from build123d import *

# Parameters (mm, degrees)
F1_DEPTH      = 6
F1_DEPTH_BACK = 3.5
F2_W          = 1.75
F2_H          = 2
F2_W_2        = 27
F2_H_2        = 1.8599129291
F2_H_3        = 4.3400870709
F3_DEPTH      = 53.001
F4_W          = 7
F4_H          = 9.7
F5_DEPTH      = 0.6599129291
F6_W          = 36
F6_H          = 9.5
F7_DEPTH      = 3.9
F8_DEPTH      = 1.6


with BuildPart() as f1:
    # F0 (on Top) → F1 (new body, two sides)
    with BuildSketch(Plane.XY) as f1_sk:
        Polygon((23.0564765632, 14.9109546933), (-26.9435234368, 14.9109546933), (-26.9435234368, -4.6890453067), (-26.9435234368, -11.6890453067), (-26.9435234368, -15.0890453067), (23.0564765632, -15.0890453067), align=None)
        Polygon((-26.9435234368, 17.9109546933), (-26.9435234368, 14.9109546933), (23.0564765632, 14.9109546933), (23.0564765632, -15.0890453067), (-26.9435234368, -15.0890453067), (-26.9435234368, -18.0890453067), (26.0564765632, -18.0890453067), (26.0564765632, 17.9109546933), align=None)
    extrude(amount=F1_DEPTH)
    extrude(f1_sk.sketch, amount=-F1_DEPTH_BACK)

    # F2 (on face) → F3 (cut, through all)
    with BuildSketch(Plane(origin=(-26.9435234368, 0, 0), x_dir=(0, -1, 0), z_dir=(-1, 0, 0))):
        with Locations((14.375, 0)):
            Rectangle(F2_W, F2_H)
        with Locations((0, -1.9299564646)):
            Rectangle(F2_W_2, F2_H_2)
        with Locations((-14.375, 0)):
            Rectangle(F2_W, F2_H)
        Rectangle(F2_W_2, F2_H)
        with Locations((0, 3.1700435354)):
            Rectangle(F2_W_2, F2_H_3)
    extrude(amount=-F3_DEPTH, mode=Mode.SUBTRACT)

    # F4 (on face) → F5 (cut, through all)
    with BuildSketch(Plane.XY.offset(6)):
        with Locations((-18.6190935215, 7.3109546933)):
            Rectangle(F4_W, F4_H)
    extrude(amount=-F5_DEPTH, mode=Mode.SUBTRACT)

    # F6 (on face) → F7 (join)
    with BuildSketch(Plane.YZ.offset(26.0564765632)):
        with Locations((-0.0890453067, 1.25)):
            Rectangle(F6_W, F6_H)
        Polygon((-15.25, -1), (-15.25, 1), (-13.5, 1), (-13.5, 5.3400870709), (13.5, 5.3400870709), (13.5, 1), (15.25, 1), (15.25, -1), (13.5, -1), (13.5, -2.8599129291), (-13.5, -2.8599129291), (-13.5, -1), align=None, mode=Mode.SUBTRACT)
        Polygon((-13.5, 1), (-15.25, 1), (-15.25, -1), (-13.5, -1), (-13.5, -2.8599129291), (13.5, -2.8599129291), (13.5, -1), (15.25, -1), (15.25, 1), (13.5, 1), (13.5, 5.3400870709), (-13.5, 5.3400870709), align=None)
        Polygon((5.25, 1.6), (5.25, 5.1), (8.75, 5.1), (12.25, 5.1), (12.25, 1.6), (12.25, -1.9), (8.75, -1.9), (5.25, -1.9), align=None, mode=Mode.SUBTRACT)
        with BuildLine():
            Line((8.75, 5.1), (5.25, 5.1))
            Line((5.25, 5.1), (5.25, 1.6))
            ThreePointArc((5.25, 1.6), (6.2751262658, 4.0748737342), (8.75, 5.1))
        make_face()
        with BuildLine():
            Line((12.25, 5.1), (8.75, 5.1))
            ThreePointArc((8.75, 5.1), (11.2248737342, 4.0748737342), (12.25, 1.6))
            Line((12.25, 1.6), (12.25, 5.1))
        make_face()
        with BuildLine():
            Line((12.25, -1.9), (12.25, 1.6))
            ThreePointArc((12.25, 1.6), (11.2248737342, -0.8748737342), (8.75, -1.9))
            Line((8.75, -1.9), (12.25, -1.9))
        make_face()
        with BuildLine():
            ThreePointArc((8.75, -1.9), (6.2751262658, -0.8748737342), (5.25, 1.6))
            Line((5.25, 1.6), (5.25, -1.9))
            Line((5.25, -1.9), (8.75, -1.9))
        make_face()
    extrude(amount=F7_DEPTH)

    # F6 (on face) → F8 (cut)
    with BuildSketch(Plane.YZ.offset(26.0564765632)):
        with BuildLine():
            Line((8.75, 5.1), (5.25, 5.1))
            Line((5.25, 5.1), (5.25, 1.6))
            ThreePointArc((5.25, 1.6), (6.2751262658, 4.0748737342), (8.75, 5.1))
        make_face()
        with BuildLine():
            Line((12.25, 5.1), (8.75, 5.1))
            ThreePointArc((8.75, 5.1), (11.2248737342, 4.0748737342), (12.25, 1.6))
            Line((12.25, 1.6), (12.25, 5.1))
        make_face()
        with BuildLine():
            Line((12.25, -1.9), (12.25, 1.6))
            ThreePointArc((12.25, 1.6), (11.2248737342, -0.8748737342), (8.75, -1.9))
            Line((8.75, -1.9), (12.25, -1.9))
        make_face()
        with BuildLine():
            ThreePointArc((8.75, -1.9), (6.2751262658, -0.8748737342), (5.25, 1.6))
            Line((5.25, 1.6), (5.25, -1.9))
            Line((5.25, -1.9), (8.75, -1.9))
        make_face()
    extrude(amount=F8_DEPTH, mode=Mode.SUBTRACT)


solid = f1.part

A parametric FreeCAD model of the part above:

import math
import FreeCAD as App
import Part
import Sketcher

doc = App.newDocument("Part")
body = doc.addObject("PartDesign::Body", "Body")

sketch1 = body.newObject("Sketcher::SketchObject", "Sketch")
sketch1.AttachmentSupport = (doc.getObject("XY_Plane"), [""])
sketch1.MapMode = "FlatFace"
sketch1.addGeometry([
    Part.LineSegment(App.Vector(-27, -18, 0), App.Vector(26, -18, 0)),
    Part.LineSegment(App.Vector(26, -18, 0), App.Vector(26, 18, 0)),
    Part.LineSegment(App.Vector(26, 18, 0), App.Vector(-27, 18, 0)),
    Part.LineSegment(App.Vector(-27, 18, 0), App.Vector(-27, -18, 0)),
], False)
sketch1.addConstraint([
    Sketcher.Constraint("Coincident", 0, 2, 1, 1),
    Sketcher.Constraint("Coincident", 1, 2, 2, 1),
    Sketcher.Constraint("Coincident", 2, 2, 3, 1),
    Sketcher.Constraint("Coincident", 3, 2, 0, 1),
    Sketcher.Constraint("Horizontal", 0),
    Sketcher.Constraint("Vertical", 1),
    Sketcher.Constraint("Horizontal", 2),
    Sketcher.Constraint("Vertical", 3),
    Sketcher.Constraint("DistanceX", 0, 1, 0, 2, 53.0),
    Sketcher.Constraint("DistanceY", 1, 1, 1, 2, 36.0),
    Sketcher.Constraint("DistanceX", -1, 1, 0, 2, 26.056477),
    Sketcher.Constraint("DistanceY", 0, 2, -1, 1, 18.089045),
])
pad1 = body.newObject("PartDesign::Pad", "Pad")
pad1.Profile = sketch1
pad1.Type = "TwoLengths"
pad1.Length = 6
pad1.Length2 = 3.5

sketch2 = body.newObject("Sketcher::SketchObject", "Sketch001")
sketch2.AttachmentSupport = (doc.getObject("YZ_Plane"), [""])
sketch2.MapMode = "FlatFace"
sketch2.AttachmentOffset = App.Placement(App.Vector(0, 0, -26.943523), App.Rotation())
sketch2.addGeometry([
    Part.LineSegment(App.Vector(-13.5, -1, 0), App.Vector(-15.2, -1, 0)),
    Part.LineSegment(App.Vector(-15.2, -1, 0), App.Vector(-15.2, 1, 0)),
    Part.LineSegment(App.Vector(-15.2, 1, 0), App.Vector(-13.5, 1, 0)),
    Part.LineSegment(App.Vector(-13.5, 1, 0), App.Vector(-13.5, 5.3, 0)),
    Part.LineSegment(App.Vector(-13.5, 5.3, 0), App.Vector(13.5, 5.3, 0)),
    Part.LineSegment(App.Vector(13.5, 5.3, 0), App.Vector(13.5, 1, 0)),
    Part.LineSegment(App.Vector(13.5, 1, 0), App.Vector(15.2, 1, 0)),
    Part.LineSegment(App.Vector(15.2, 1, 0), App.Vector(15.2, -1, 0)),
    Part.LineSegment(App.Vector(15.2, -1, 0), App.Vector(13.5, -1, 0)),
    Part.LineSegment(App.Vector(13.5, -1, 0), App.Vector(13.5, -2.9, 0)),
    Part.LineSegment(App.Vector(13.5, -2.9, 0), App.Vector(-13.5, -2.9, 0)),
    Part.LineSegment(App.Vector(-13.5, -2.9, 0), App.Vector(-13.5, -1, 0)),
], False)
sketch2.addConstraint([
    Sketcher.Constraint("Coincident", 0, 2, 1, 1),
    Sketcher.Constraint("Coincident", 1, 2, 2, 1),
    Sketcher.Constraint("Coincident", 2, 2, 3, 1),
    Sketcher.Constraint("Coincident", 3, 2, 4, 1),
    Sketcher.Constraint("Coincident", 4, 2, 5, 1),
    Sketcher.Constraint("Coincident", 5, 2, 6, 1),
    Sketcher.Constraint("Coincident", 6, 2, 7, 1),
    Sketcher.Constraint("Coincident", 7, 2, 8, 1),
    Sketcher.Constraint("Coincident", 8, 2, 9, 1),
    Sketcher.Constraint("Coincident", 9, 2, 10, 1),
    Sketcher.Constraint("Coincident", 10, 2, 11, 1),
    Sketcher.Constraint("Coincident", 11, 2, 0, 1),
    Sketcher.Constraint("Horizontal", 0),
    Sketcher.Constraint("Vertical", 1),
    Sketcher.Constraint("Horizontal", 2),
    Sketcher.Constraint("Vertical", 3),
    Sketcher.Constraint("Horizontal", 4),
    Sketcher.Constraint("Vertical", 5),
    Sketcher.Constraint("Horizontal", 6),
    Sketcher.Constraint("Vertical", 7),
    Sketcher.Constraint("Horizontal", 8),
    Sketcher.Constraint("Vertical", 9),
    Sketcher.Constraint("Horizontal", 10),
    Sketcher.Constraint("Vertical", 11),
    Sketcher.Constraint("Symmetric", 0, 2, 6, 2, -1, 1),
    Sketcher.Constraint("Symmetric", 2, 2, 8, 2, -1, 1),
    Sketcher.Constraint("Symmetric", 2, 2, 5, 2, -2),
    Sketcher.Constraint("Vertical", 3, 2, 10, 2),
    Sketcher.Constraint("DistanceX", 4, 1, 4, 2, 27.0),
    Sketcher.Constraint("DistanceY", 1, 1, 1, 2, 2.0),
    Sketcher.Constraint("DistanceX", 0, 2, 0, 1, 1.75),
    Sketcher.Constraint("DistanceY", 9, 2, 4, 2, 8.2),
    Sketcher.Constraint("DistanceY", 3, 1, 3, 2, 4.340087),
])
pocket1 = body.newObject("PartDesign::Pocket", "Pocket")
pocket1.Profile = sketch2
pocket1.Type = "ThroughAll"
pocket1.Reversed = True

sketch3 = body.newObject("Sketcher::SketchObject", "Sketch002")
sketch3.AttachmentSupport = (doc.getObject("XY_Plane"), [""])
sketch3.MapMode = "FlatFace"
sketch3.AttachmentOffset = App.Placement(App.Vector(0, 0, 6), App.Rotation())
sketch3.addGeometry([
    Part.LineSegment(App.Vector(-22, 12, 0), App.Vector(-22, 2, 0)),
    Part.LineSegment(App.Vector(-22, 2, 0), App.Vector(-15, 2, 0)),
    Part.LineSegment(App.Vector(-15, 2, 0), App.Vector(-15, 12, 0)),
    Part.LineSegment(App.Vector(-15, 12, 0), App.Vector(-22, 12, 0)),
], False)
sketch3.addConstraint([
    Sketcher.Constraint("Coincident", 0, 2, 1, 1),
    Sketcher.Constraint("Coincident", 1, 2, 2, 1),
    Sketcher.Constraint("Coincident", 2, 2, 3, 1),
    Sketcher.Constraint("Coincident", 3, 2, 0, 1),
    Sketcher.Constraint("Vertical", 0),
    Sketcher.Constraint("Horizontal", 1),
    Sketcher.Constraint("Vertical", 2),
    Sketcher.Constraint("Horizontal", 3),
    Sketcher.Constraint("DistanceX", 1, 1, 1, 2, 7.0),
    Sketcher.Constraint("DistanceY", 0, 2, 0, 1, 9.7),
    Sketcher.Constraint("DistanceX", 0, 2, -1, 1, 22.119094),
    Sketcher.Constraint("DistanceY", -1, 1, 0, 2, 2.460955),
])
pocket2 = body.newObject("PartDesign::Pocket", "Pocket001")
pocket2.Profile = sketch3
pocket2.Length = 0.659913

sketch4 = body.newObject("Sketcher::SketchObject", "Sketch003")
sketch4.AttachmentSupport = (doc.getObject("YZ_Plane"), [""])
sketch4.MapMode = "FlatFace"
sketch4.AttachmentOffset = App.Placement(App.Vector(0, 0, 26.056477), App.Rotation())
sketch4.addGeometry([
    Part.LineSegment(App.Vector(-18.1, 6, 0), App.Vector(-18.1, -3.5, 0)),
    Part.LineSegment(App.Vector(-18.1, -3.5, 0), App.Vector(17.9, -3.5, 0)),
    Part.LineSegment(App.Vector(17.9, -3.5, 0), App.Vector(17.9, 6, 0)),
    Part.LineSegment(App.Vector(17.9, 6, 0), App.Vector(-18.1, 6, 0)),
    Part.ArcOfCircle(Part.Circle(App.Vector(8.8, 1.6, 0), App.Vector(0, 0, 1), 3.5), math.radians(90), math.radians(180)),
    Part.ArcOfCircle(Part.Circle(App.Vector(8.8, 1.6, 0), App.Vector(0, 0, 1), 3.5), math.radians(0), math.radians(90)),
    Part.ArcOfCircle(Part.Circle(App.Vector(8.8, 1.6, 0), App.Vector(0, 0, 1), 3.5), math.radians(-90), math.radians(0)),
    Part.ArcOfCircle(Part.Circle(App.Vector(8.8, 1.6, 0), App.Vector(0, 0, 1), 3.5), math.radians(180), math.radians(270)),
], False)
sketch4.addConstraint([
    Sketcher.Constraint("Coincident", 0, 2, 1, 1),
    Sketcher.Constraint("Coincident", 1, 2, 2, 1),
    Sketcher.Constraint("Coincident", 2, 2, 3, 1),
    Sketcher.Constraint("Coincident", 3, 2, 0, 1),
    Sketcher.Constraint("Tangent", 4, 1, 5, 2),
    Sketcher.Constraint("Tangent", 5, 1, 6, 2),
    Sketcher.Constraint("Tangent", 6, 1, 7, 2),
    Sketcher.Constraint("Tangent", 7, 1, 4, 2),
    Sketcher.Constraint("Vertical", 0),
    Sketcher.Constraint("Horizontal", 1),
    Sketcher.Constraint("Vertical", 2),
    Sketcher.Constraint("Horizontal", 3),
    Sketcher.Constraint("Equal", 4, 5),
    Sketcher.Constraint("Horizontal", 7, 3, 5, 1),
    Sketcher.Constraint("Horizontal", 5, 1, 7, 1),
    Sketcher.Constraint("Vertical", 7, 3, 4, 1),
    Sketcher.Constraint("Vertical", 4, 1, 6, 1),
    Sketcher.Constraint("Radius", 4, 3.5),
    Sketcher.Constraint("DistanceX", 1, 1, 1, 2, 36.0),
    Sketcher.Constraint("DistanceY", 0, 2, 0, 1, 9.5),
    Sketcher.Constraint("DistanceY", -1, 1, 2, 2, 6.0),
    Sketcher.Constraint("DistanceY", -1, 1, 4, 3, 1.6),
    Sketcher.Constraint("DistanceX", -1, 1, 4, 3, 8.75),
    Sketcher.Constraint("DistanceX", 0, 2, -1, 1, 18.089045),
])
pad2 = body.newObject("PartDesign::Pad", "Pad001")
pad2.Profile = sketch4
pad2.Length = 3.9

sketch5 = body.newObject("Sketcher::SketchObject", "Sketch004")
sketch5.AttachmentSupport = (doc.getObject("YZ_Plane"), [""])
sketch5.MapMode = "FlatFace"
sketch5.AttachmentOffset = App.Placement(App.Vector(0, 0, 26.056477), App.Rotation())
sketch5.addGeometry([
    Part.LineSegment(App.Vector(8.8, 5.1, 0), App.Vector(5.2, 5.1, 0)),
    Part.LineSegment(App.Vector(5.2, 5.1, 0), App.Vector(5.2, 1.6, 0)),
    Part.ArcOfCircle(Part.Circle(App.Vector(8.8, 1.6, 0), App.Vector(0, 0, 1), 3.5), math.radians(90), math.radians(180)),
    Part.LineSegment(App.Vector(12.2, 5.1, 0), App.Vector(8.8, 5.1, 0)),
    Part.ArcOfCircle(Part.Circle(App.Vector(8.8, 1.6, 0), App.Vector(0, 0, 1), 3.5), math.radians(0), math.radians(90)),
    Part.LineSegment(App.Vector(12.2, 1.6, 0), App.Vector(12.2, 5.1, 0)),
    Part.LineSegment(App.Vector(12.2, -1.9, 0), App.Vector(12.2, 1.6, 0)),
    Part.ArcOfCircle(Part.Circle(App.Vector(8.8, 1.6, 0), App.Vector(0, 0, 1), 3.5), math.radians(-90), math.radians(0)),
    Part.LineSegment(App.Vector(8.8, -1.9, 0), App.Vector(12.2, -1.9, 0)),
    Part.ArcOfCircle(Part.Circle(App.Vector(8.8, 1.6, 0), App.Vector(0, 0, 1), 3.5), math.radians(180), math.radians(270)),
    Part.LineSegment(App.Vector(5.2, 1.6, 0), App.Vector(5.2, -1.9, 0)),
    Part.LineSegment(App.Vector(5.2, -1.9, 0), App.Vector(8.8, -1.9, 0)),
], False)
sketch5.addConstraint([
    Sketcher.Constraint("Coincident", 0, 2, 1, 1),
    Sketcher.Constraint("Tangent", 1, 2, 2, 2),
    Sketcher.Constraint("Tangent", 2, 1, 0, 1),
    Sketcher.Constraint("Tangent", 3, 2, 4, 2),
    Sketcher.Constraint("Tangent", 4, 1, 5, 1),
    Sketcher.Constraint("Coincident", 5, 2, 3, 1),
    Sketcher.Constraint("Tangent", 6, 2, 7, 2),
    Sketcher.Constraint("Tangent", 7, 1, 8, 1),
    Sketcher.Constraint("Coincident", 8, 2, 6, 1),
    Sketcher.Constraint("Tangent", 9, 1, 10, 1),
    Sketcher.Constraint("Coincident", 10, 2, 11, 1),
    Sketcher.Constraint("Tangent", 11, 2, 9, 2),
    Sketcher.Constraint("Horizontal", 0),
    Sketcher.Constraint("Vertical", 1),
    Sketcher.Constraint("Horizontal", 3),
    Sketcher.Constraint("Vertical", 5),
    Sketcher.Constraint("Vertical", 6),
    Sketcher.Constraint("Horizontal", 8),
    Sketcher.Constraint("Vertical", 10),
    Sketcher.Constraint("Horizontal", 11),
    Sketcher.Constraint("Coincident", 4, 3, 2, 3),
    Sketcher.Constraint("Coincident", 7, 3, 2, 3),
    Sketcher.Constraint("Coincident", 9, 3, 2, 3),
    Sketcher.Constraint("Equal", 2, 4),
    Sketcher.Constraint("Equal", 4, 7),
    Sketcher.Constraint("Equal", 7, 9),
    Sketcher.Constraint("Radius", 2, 3.5),
    Sketcher.Constraint("DistanceY", -1, 1, 2, 3, 1.6),
    Sketcher.Constraint("DistanceX", -1, 1, 2, 3, 8.75),
])
pocket3 = body.newObject("PartDesign::Pocket", "Pocket002")
pocket3.Profile = sketch5
pocket3.Length = 1.6
pocket3.Reversed = True

doc.recompute()
